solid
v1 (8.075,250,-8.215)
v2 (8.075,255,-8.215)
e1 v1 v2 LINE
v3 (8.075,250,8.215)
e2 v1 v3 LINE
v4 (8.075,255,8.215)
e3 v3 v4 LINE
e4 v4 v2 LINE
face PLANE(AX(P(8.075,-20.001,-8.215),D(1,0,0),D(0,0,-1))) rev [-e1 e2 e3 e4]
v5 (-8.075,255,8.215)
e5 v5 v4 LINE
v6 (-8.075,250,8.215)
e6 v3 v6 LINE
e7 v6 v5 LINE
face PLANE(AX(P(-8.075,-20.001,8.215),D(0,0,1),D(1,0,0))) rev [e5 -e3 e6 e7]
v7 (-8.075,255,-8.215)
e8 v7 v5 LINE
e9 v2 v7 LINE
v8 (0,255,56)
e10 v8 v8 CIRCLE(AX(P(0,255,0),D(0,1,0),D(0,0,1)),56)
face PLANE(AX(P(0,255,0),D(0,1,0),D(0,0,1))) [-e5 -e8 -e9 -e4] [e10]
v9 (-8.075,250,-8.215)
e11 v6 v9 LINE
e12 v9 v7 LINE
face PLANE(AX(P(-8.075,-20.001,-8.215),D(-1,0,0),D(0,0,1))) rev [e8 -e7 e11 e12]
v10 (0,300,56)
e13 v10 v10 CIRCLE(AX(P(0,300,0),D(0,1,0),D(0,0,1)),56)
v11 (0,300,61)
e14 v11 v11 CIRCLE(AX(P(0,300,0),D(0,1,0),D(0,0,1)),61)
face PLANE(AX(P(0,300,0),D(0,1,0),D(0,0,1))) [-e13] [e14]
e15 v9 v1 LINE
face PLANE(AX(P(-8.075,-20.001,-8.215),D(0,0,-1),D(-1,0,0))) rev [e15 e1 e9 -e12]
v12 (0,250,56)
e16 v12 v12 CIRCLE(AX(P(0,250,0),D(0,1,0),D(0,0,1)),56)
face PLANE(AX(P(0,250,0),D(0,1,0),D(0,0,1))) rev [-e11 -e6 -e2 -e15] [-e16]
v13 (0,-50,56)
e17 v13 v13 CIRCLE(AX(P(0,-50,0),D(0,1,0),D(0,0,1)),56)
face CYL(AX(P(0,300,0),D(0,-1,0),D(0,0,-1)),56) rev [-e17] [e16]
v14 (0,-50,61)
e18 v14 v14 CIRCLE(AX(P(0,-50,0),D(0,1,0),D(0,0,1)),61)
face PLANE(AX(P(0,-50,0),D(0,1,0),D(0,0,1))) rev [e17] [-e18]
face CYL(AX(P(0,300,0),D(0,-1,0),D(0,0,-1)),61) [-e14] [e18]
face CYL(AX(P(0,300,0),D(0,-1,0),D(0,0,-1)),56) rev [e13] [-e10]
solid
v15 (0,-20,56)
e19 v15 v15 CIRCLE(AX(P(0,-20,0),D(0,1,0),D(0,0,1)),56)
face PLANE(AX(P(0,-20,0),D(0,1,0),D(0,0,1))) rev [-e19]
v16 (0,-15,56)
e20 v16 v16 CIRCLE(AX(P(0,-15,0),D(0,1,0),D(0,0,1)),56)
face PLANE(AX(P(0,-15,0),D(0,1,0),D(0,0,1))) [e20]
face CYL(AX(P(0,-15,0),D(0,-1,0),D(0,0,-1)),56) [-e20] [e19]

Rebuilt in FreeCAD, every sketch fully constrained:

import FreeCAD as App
import Part
import Sketcher

V = App.Vector
Q = App.Units.Quantity

doc = App.newDocument("Part")
body = doc.addObject("PartDesign::Body", "Body")

# Sketch on XZ plane
sketch1 = body.newObject("Sketcher::SketchObject", "Sketch")
sketch1.AttachmentSupport = (doc.getObject("XZ_Plane"), [""])
sketch1.MapMode = "FlatFace"
sketch1.addGeometry([
    Part.Circle(V(0, 0, 0), V(0, 0, 1), 61),
    Part.Circle(V(0, 0, 0), V(0, 0, 1), 56),
], False)
sketch1.addConstraint([
    Sketcher.Constraint("Coincident", 0, 3, -1, 1),
    Sketcher.Constraint("Coincident", 1, 3, -1, 1),
    Sketcher.Constraint("Diameter", 0, Q("122 mm")),
    Sketcher.Constraint("Diameter", 1, Q("112 mm")),
])
pad1 = body.newObject("PartDesign::Pad", "Pad")
pad1.Profile = sketch1
pad1.Length = 300
pad1.Reversed = True

# Sketch on XZ plane
sketch2 = body.newObject("Sketcher::SketchObject", "Sketch001")
sketch2.AttachmentSupport = (doc.getObject("XZ_Plane"), [""])
sketch2.MapMode = "FlatFace"
sketch2.AttachmentOffset = App.Placement(V(0, 0, -250), App.Rotation())
sketch2.addGeometry(Part.Circle(V(0, 0, 0), V(0, 0, 1), 56), False)
sketch2.addConstraint([
    Sketcher.Constraint("Coincident", 0, 3, -1, 1),
    Sketcher.Constraint("Diameter", 0, Q("112 mm")),
])
pad2 = body.newObject("PartDesign::Pad", "Pad001")
pad2.Profile = sketch2
pad2.Length = 5
pad2.Reversed = True

# Sketch on XZ plane
sketch3 = body.newObject("Sketcher::SketchObject", "Sketch002")
sketch3.AttachmentSupport = (doc.getObject("XZ_Plane"), [""])
sketch3.MapMode = "FlatFace"
sketch3.AttachmentOffset = App.Placement(V(0, 0, -255), App.Rotation())
sketch3.addGeometry([
    Part.LineSegment(V(-8, -8, 0), V(-8, 8, 0)),
    Part.LineSegment(V(-8, 8, 0), V(8, 8, 0)),
    Part.LineSegment(V(8, 8, 0), V(8, -8, 0)),
    Part.LineSegment(V(8, -8, 0), V(-8, -8, 0)),
], False)
sketch3.addConstraint([
    Sketcher.Constraint("Coincident", 0, 2, 1, 1),
    Sketcher.Constraint("Coincident", 1, 2, 2, 1),
    Sketcher.Constraint("Coincident", 2, 2, 3, 1),
    Sketcher.Constraint("Coincident", 3, 2, 0, 1),
    Sketcher.Constraint("Vertical", 0),
    Sketcher.Constraint("Horizontal", 1),
    Sketcher.Constraint("Vertical", 2),
    Sketcher.Constraint("Horizontal", 3),
    Sketcher.Constraint("Symmetric", 0, 2, 2, 2, -1, 1),
    Sketcher.Constraint("DistanceX", 1, 1, 1, 2, Q("16.15 mm")),
    Sketcher.Constraint("DistanceY", 0, 1, 0, 2, Q("16.43 mm")),
])
pocket1 = body.newObject("PartDesign::Pocket", "Pocket")
pocket1.Profile = sketch3
pocket1.Length = 5
pocket1.Reversed = True

# Sketch on XZ plane
sketch4 = body.newObject("Sketcher::SketchObject", "Sketch003")
sketch4.AttachmentSupport = (doc.getObject("XZ_Plane"), [""])
sketch4.MapMode = "FlatFace"
sketch4.AttachmentOffset = App.Placement(V(0, 0, 50), App.Rotation())
sketch4.addGeometry([
    Part.Circle(V(0, 0, 0), V(0, 0, 1), 61),
    Part.Circle(V(0, 0, 0), V(0, 0, 1), 56),
], False)
sketch4.addConstraint([
    Sketcher.Constraint("Coincident", 0, 3, -1, 1),
    Sketcher.Constraint("Coincident", 1, 3, -1, 1),
    Sketcher.Constraint("Diameter", 0, Q("122 mm")),
    Sketcher.Constraint("Diameter", 1, Q("112 mm")),
])
pad3 = body.newObject("PartDesign::Pad", "Pad002")
pad3.Profile = sketch4
pad3.Length = 50
pad3.Reversed = True
body2 = doc.addObject("PartDesign::Body", "Body001")

# Sketch on XZ plane
sketch5 = body2.newObject("Sketcher::SketchObject", "Sketch004")
sketch5.AttachmentSupport = (doc.getObject("XZ_Plane001"), [""])
sketch5.MapMode = "FlatFace"
sketch5.AttachmentOffset = App.Placement(V(0, 0, 20), App.Rotation())
sketch5.addGeometry(Part.Circle(V(0, 0, 0), V(0, 0, 1), 56), False)
sketch5.addConstraint([
    Sketcher.Constraint("Coincident", 0, 3, -1, 1),
    Sketcher.Constraint("Diameter", 0, Q("112 mm")),
])
pad4 = body2.newObject("PartDesign::Pad", "Pad003")
pad4.Profile = sketch5
pad4.Length = 5
pad4.Reversed = True

doc.recompute()
